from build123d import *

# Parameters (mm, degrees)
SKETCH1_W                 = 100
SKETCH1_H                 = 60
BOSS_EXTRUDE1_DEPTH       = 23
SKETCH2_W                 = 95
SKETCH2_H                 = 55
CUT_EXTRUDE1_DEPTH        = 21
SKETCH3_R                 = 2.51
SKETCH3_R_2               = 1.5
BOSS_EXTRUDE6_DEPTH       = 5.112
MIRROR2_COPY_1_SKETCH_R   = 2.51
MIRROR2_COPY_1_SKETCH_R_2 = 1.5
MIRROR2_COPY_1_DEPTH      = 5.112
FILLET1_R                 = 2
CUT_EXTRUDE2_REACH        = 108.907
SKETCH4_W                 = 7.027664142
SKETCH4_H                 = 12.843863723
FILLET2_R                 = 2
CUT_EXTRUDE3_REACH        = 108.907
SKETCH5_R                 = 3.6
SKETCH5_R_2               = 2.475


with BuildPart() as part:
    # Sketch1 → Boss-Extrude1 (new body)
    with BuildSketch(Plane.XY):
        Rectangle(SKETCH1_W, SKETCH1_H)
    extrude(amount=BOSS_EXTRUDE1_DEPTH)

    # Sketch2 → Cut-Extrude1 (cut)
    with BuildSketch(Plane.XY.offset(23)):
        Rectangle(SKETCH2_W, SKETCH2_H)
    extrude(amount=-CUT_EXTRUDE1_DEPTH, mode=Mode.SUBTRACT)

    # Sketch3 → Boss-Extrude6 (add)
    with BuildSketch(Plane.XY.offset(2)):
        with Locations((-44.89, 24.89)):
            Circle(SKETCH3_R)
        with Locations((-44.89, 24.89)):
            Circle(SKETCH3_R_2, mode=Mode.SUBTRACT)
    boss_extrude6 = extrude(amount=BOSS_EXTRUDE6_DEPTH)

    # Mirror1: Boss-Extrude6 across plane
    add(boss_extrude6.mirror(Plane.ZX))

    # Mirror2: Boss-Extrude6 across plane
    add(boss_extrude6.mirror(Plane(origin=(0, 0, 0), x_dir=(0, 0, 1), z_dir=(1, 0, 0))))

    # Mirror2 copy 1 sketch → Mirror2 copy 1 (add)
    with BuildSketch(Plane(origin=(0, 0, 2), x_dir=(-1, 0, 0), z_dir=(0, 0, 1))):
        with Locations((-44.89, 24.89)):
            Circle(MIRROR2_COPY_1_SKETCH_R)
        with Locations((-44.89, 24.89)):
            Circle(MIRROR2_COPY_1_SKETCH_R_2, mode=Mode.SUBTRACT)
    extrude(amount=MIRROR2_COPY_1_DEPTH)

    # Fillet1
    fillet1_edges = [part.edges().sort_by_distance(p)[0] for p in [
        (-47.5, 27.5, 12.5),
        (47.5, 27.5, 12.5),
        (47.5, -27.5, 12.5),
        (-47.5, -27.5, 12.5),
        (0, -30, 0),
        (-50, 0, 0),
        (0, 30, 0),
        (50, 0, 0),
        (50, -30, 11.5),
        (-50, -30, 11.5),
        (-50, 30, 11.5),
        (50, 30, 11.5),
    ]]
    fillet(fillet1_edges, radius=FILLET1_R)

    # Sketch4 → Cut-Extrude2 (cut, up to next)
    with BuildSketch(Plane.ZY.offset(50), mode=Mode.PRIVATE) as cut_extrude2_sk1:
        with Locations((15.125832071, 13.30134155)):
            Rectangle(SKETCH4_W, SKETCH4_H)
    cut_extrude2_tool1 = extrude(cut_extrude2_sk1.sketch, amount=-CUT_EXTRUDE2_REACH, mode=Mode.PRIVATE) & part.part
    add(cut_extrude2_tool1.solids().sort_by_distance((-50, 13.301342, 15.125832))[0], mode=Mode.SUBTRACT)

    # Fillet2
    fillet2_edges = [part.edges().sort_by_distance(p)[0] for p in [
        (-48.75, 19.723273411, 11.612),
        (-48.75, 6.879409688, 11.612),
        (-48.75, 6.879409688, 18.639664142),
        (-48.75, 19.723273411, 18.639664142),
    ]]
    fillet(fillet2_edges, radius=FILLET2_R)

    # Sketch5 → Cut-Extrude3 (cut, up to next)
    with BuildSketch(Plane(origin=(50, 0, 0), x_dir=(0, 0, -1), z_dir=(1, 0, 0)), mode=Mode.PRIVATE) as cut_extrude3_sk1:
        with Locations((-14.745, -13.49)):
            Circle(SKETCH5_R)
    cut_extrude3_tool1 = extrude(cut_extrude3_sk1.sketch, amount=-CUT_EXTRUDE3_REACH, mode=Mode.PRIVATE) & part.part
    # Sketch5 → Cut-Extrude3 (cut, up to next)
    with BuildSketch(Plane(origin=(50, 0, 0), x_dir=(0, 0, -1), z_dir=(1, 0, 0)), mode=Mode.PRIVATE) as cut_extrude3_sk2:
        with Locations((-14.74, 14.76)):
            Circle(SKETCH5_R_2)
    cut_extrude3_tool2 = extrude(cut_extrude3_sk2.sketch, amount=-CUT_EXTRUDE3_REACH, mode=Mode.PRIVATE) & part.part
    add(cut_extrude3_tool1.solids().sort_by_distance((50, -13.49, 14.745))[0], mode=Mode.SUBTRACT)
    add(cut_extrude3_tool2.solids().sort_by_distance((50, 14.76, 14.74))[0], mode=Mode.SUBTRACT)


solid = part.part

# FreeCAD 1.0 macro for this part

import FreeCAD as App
import Part
import Sketcher

V = App.Vector
Q = App.Units.Quantity


def edges_at(feature, points):
    """Names of the edges that pass closest to the given points."""
    edges = feature.Shape.Edges
    near = lambda p: min(range(len(edges)), key=lambda i: edges[i].distToShape(Part.Vertex(*p))[0])
    return sorted({f"Edge{near(p) + 1}" for p in points})


def add_polygon(sketch, points):
    """Adds a closed chain of lines whose ends are joined by coincident constraints."""
    first, n = sketch.GeometryCount, len(points)
    for a, b in zip(points, points[1:] + points[:1]):
        sketch.addGeometry(Part.LineSegment(App.Vector(*a, 0), App.Vector(*b, 0)), False)
    for i in range(n):
        sketch.addConstraint(Sketcher.Constraint("Coincident", first + i, 2, first + (i + 1) % n, 1))

doc = App.newDocument("Part")
body = doc.addObject("PartDesign::Body", "Body")

sketch1 = body.newObject("Sketcher::SketchObject", "Sketch")
sketch1.AttachmentSupport = (doc.getObject("XY_Plane"), [""])
sketch1.MapMode = "FlatFace"
add_polygon(sketch1, [(-50, 30), (-50, -30), (50, -30), (50, 30)])
sketch1.addConstraint(Sketcher.Constraint("Vertical", 0))
sketch1.addConstraint(Sketcher.Constraint("Horizontal", 1))
sketch1.addConstraint(Sketcher.Constraint("Vertical", 2))
sketch1.addConstraint(Sketcher.Constraint("Horizontal", 3))
sketch1.addConstraint(Sketcher.Constraint("Symmetric", 0, 2, 2, 2, -1, 1))
sketch1.addConstraint(Sketcher.Constraint("DistanceX", 1, 1, 1, 2, Q("100 mm")))
sketch1.addConstraint(Sketcher.Constraint("DistanceY", 0, 2, 0, 1, Q("60 mm")))
pad1 = body.newObject("PartDesign::Pad", "Pad")
pad1.Profile = sketch1
pad1.Length = 23

sketch2 = body.newObject("Sketcher::SketchObject", "Sketch001")
sketch2.AttachmentSupport = (doc.getObject("XY_Plane"), [""])
sketch2.MapMode = "FlatFace"
sketch2.AttachmentOffset = App.Placement(V(0, 0, 23), App.Rotation())
add_polygon(sketch2, [(-48, 28), (-48, -28), (48, -28), (48, 28)])
sketch2.addConstraint(Sketcher.Constraint("Vertical", 0))
sketch2.addConstraint(Sketcher.Constraint("Horizontal", 1))
sketch2.addConstraint(Sketcher.Constraint("Vertical", 2))
sketch2.addConstraint(Sketcher.Constraint("Horizontal", 3))
sketch2.addConstraint(Sketcher.Constraint("Symmetric", 0, 2, 2, 2, -1, 1))
sketch2.addConstraint(Sketcher.Constraint("DistanceX", 1, 1, 1, 2, Q("95 mm")))
sketch2.addConstraint(Sketcher.Constraint("DistanceY", 0, 2, 0, 1, Q("55 mm")))
pocket1 = body.newObject("PartDesign::Pocket", "Pocket")
pocket1.Profile = sketch2
pocket1.Length = 21

sketch3 = body.newObject("Sketcher::SketchObject", "Sketch002")
sketch3.AttachmentSupport = (doc.getObject("XY_Plane"), [""])
sketch3.MapMode = "FlatFace"
sketch3.AttachmentOffset = App.Placement(V(0, 0, 2), App.Rotation())
sketch3.addGeometry(Part.Circle(V(-44.9, 24.9, 0), V(0, 0, 1), 2.5), False)
sketch3.addGeometry(Part.Circle(V(-44.9, 24.9, 0), V(0, 0, 1), 1.5), False)
sketch3.addConstraint(Sketcher.Constraint("Coincident", 1, 3, 0, 3))
sketch3.addConstraint(Sketcher.Constraint("Diameter", 1, Q("3 mm")))
sketch3.addConstraint(Sketcher.Constraint("Diameter", 0, Q("5.02 mm")))
sketch3.addConstraint(Sketcher.Constraint("DistanceX", 0, 3, -1, 1, Q("44.89 mm")))
sketch3.addConstraint(Sketcher.Constraint("DistanceY", -1, 1, 0, 3, Q("24.89 mm")))
pad2 = body.newObject("PartDesign::Pad", "Pad001")
pad2.Profile = sketch3
pad2.Length = 5.112
doc.recompute()

mirrored = body.newObject("PartDesign::Mirrored", "Mirrored")
mirrored.Originals = [pad2]
mirrored.MirrorPlane = (doc.getObject("XZ_Plane"), [""])
body.Tip = mirrored
doc.recompute()

mirrored2 = body.newObject("PartDesign::Mirrored", "Mirrored001")
mirrored2.Originals = [pad2]
mirrored2.MirrorPlane = (doc.getObject("YZ_Plane"), [""])
body.Tip = mirrored2

sketch4 = body.newObject("Sketcher::SketchObject", "Sketch003")
sketch4.AttachmentSupport = (doc.getObject("XY_Plane"), [""])
sketch4.MapMode = "FlatFace"
sketch4.AttachmentOffset = App.Placement(V(0, 0, 2), App.Rotation())
sketch4.addGeometry(Part.Circle(V(44.9, -24.9, 0), V(0, 0, 1), 2.5), False)
sketch4.addGeometry(Part.Circle(V(44.9, -24.9, 0), V(0, 0, 1), 1.5), False)
sketch4.addConstraint(Sketcher.Constraint("Coincident", 1, 3, 0, 3))
sketch4.addConstraint(Sketcher.Constraint("Diameter", 1, Q("3 mm")))
sketch4.addConstraint(Sketcher.Constraint("Diameter", 0, Q("5.02 mm")))
sketch4.addConstraint(Sketcher.Constraint("DistanceX", -1, 1, 0, 3, Q("44.89 mm")))
sketch4.addConstraint(Sketcher.Constraint("DistanceY", 0, 3, -1, 1, Q("24.89 mm")))
pad3 = body.newObject("PartDesign::Pad", "Pad002")
pad3.Profile = sketch4
pad3.Length = 5.112
doc.recompute()

fillet = body.newObject("PartDesign::Fillet", "Fillet")
fillet.Base = (pad3, edges_at(pad3, [
    (-47.5, 27.5, 12.5),
    (47.5, 27.5, 12.5),
    (47.5, -27.5, 12.5),
    (-47.5, -27.5, 12.5),
    (0, -30, 0),
    (-50, 0, 0),
    (0, 30, 0),
    (50, 0, 0),
    (50, -30, 11.5),
    (-50, -30, 11.5),
    (-50, 30, 11.5),
    (50, 30, 11.5),
]))
fillet.Radius = 2

sketch5 = body.newObject("Sketcher::SketchObject", "Sketch004")
sketch5.AttachmentSupport = (doc.getObject("YZ_Plane"), [""])
sketch5.MapMode = "FlatFace"
sketch5.AttachmentOffset = App.Placement(V(0, 0, -50), App.Rotation())
add_polygon(sketch5, [(20, 12), (7, 12), (7, 19), (20, 19)])
sketch5.addConstraint(Sketcher.Constraint("Horizontal", 0))
sketch5.addConstraint(Sketcher.Constraint("Vertical", 1))
sketch5.addConstraint(Sketcher.Constraint("Horizontal", 2))
sketch5.addConstraint(Sketcher.Constraint("Vertical", 3))
sketch5.addConstraint(Sketcher.Constraint("DistanceY", -1, 1, 0, 2, Q("11.612 mm")))
sketch5.addConstraint(Sketcher.Constraint("DistanceX", 0, 2, 0, 1, Q("12.843864 mm")))
sketch5.addConstraint(Sketcher.Constraint("DistanceY", 1, 1, 1, 2, Q("7.027664 mm")))
sketch5.addConstraint(Sketcher.Constraint("DistanceX", -1, 1, 0, 2, Q("6.87941 mm")))
pocket2 = body.newObject("PartDesign::Pocket", "Pocket001")
pocket2.Profile = sketch5
pocket2.Type = "UpToFirst"
pocket2.Reversed = True
doc.recompute()

fillet2 = body.newObject("PartDesign::Fillet", "Fillet001")
fillet2.Base = (pocket2, edges_at(pocket2, [
    (-48.75, 19.723, 11.612),
    (-48.75, 6.879, 11.612),
    (-48.75, 6.879, 18.64),
    (-48.75, 19.723, 18.64),
]))
fillet2.Radius = 2

sketch6 = body.newObject("Sketcher::SketchObject", "Sketch005")
sketch6.AttachmentSupport = (doc.getObject("YZ_Plane"), [""])
sketch6.MapMode = "FlatFace"
sketch6.AttachmentOffset = App.Placement(V(0, 0, 50), App.Rotation())
sketch6.addGeometry(Part.Circle(V(-13.5, 14.7, 0), V(0, 0, 1), 3.6), False)
sketch6.addConstraint(Sketcher.Constraint("Diameter", 0, Q("7.2 mm")))
sketch6.addConstraint(Sketcher.Constraint("DistanceX", 0, 3, -1, 1, Q("13.49 mm")))
sketch6.addConstraint(Sketcher.Constraint("DistanceY", -1, 1, 0, 3, Q("14.745 mm")))
pocket3 = body.newObject("PartDesign::Pocket", "Pocket002")
pocket3.Profile = sketch6
pocket3.Type = "UpToFirst"

sketch7 = body.newObject("Sketcher::SketchObject", "Sketch006")
sketch7.AttachmentSupport = (doc.getObject("YZ_Plane"), [""])
sketch7.MapMode = "FlatFace"
sketch7.AttachmentOffset = App.Placement(V(0, 0, 50), App.Rotation())
sketch7.addGeometry(Part.Circle(V(14.8, 14.7, 0), V(0, 0, 1), 2.5), False)
sketch7.addConstraint(Sketcher.Constraint("Diameter", 0, Q("4.95 mm")))
sketch7.addConstraint(Sketcher.Constraint("DistanceX", -1, 1, 0, 3, Q("14.76 mm")))
sketch7.addConstraint(Sketcher.Constraint("DistanceY", -1, 1, 0, 3, Q("14.74 mm")))
pocket4 = body.newObject("PartDesign::Pocket", "Pocket003")
pocket4.Profile = sketch7
pocket4.Type = "UpToFirst"

doc.recompute()
